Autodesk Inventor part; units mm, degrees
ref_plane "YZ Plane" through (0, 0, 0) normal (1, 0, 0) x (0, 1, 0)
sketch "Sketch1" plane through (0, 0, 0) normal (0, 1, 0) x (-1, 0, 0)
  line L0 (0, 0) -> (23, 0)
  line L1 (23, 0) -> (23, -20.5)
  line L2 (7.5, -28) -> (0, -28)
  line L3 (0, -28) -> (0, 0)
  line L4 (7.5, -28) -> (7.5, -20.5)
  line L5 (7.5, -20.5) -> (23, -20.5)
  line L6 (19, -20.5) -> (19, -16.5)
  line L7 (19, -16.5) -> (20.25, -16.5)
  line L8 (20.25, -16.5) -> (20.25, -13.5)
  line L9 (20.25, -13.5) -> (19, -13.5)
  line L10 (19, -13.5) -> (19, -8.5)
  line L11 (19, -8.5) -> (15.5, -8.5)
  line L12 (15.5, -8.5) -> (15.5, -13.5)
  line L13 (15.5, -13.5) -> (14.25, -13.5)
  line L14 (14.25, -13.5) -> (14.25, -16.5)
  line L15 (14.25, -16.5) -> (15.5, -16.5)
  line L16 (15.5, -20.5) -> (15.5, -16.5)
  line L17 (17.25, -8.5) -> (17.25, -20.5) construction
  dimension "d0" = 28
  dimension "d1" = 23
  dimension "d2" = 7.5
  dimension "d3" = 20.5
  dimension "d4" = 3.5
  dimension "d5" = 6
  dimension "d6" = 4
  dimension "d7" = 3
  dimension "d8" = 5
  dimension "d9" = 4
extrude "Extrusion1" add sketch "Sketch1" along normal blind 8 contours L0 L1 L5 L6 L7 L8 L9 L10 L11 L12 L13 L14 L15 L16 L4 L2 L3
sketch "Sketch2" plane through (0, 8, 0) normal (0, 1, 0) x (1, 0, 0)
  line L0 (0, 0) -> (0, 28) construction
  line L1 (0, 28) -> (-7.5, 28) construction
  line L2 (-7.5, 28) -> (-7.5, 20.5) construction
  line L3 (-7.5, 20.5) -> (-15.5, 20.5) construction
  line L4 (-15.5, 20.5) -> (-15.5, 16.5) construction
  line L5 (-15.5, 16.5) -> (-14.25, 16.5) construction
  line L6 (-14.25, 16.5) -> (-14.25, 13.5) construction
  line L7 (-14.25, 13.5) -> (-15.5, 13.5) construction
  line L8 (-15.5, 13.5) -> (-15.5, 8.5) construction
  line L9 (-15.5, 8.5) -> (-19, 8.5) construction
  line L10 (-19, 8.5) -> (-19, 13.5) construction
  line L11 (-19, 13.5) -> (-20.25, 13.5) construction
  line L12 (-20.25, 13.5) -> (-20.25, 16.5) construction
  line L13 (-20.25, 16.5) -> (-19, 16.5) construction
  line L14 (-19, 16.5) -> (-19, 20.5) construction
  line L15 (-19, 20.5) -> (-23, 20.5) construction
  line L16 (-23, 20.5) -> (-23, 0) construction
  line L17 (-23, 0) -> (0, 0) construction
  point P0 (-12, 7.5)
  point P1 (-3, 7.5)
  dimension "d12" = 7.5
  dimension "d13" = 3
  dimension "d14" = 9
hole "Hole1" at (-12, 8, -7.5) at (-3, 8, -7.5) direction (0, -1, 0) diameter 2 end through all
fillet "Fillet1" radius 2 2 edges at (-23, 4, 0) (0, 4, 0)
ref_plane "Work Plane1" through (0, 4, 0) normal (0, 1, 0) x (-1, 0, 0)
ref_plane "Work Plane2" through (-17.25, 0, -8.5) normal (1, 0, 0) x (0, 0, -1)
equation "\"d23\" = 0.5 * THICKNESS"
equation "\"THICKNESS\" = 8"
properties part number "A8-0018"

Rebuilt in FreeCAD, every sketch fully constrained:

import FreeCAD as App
import Part
import Sketcher

V = App.Vector


def edges_at(feature, points):
    """Names of the edges that pass closest to the given points."""
    edges = feature.Shape.Edges
    near = lambda p: min(range(len(edges)), key=lambda i: edges[i].distToShape(Part.Vertex(*p))[0])
    return sorted({f"Edge{near(p) + 1}" for p in points})

doc = App.newDocument("Part")
body = doc.addObject("PartDesign::Body", "Body")

sketch1 = body.newObject("Sketcher::SketchObject", "Sketch")
sketch1.AttachmentSupport = (doc.getObject("XZ_Plane"), [""])
sketch1.MapMode = "FlatFace"
sketch1.addGeometry(Part.LineSegment(V(-23, 0, 0), V(0, 0, 0)), False)
sketch1.addGeometry(Part.LineSegment(V(0, 0, 0), V(0, -28, 0)), False)
sketch1.addGeometry(Part.LineSegment(V(0, -28, 0), V(-7.5, -28, 0)), False)
sketch1.addGeometry(Part.LineSegment(V(-7.5, -28, 0), V(-7.5, -20.5, 0)), False)
sketch1.addGeometry(Part.LineSegment(V(-7.5, -20.5, 0), V(-15.5, -20.5, 0)), False)
sketch1.addGeometry(Part.LineSegment(V(-15.5, -20.5, 0), V(-15.5, -16.5, 0)), False)
sketch1.addGeometry(Part.LineSegment(V(-15.5, -16.5, 0), V(-14.25, -16.5, 0)), False)
sketch1.addGeometry(Part.LineSegment(V(-14.25, -16.5, 0), V(-14.25, -13.5, 0)), False)
sketch1.addGeometry(Part.LineSegment(V(-14.25, -13.5, 0), V(-15.5, -13.5, 0)), False)
sketch1.addGeometry(Part.LineSegment(V(-15.5, -13.5, 0), V(-15.5, -8.5, 0)), False)
sketch1.addGeometry(Part.LineSegment(V(-15.5, -8.5, 0), V(-19, -8.5, 0)), False)
sketch1.addGeometry(Part.LineSegment(V(-19, -8.5, 0), V(-19, -13.5, 0)), False)
sketch1.addGeometry(Part.LineSegment(V(-19, -13.5, 0), V(-20.25, -13.5, 0)), False)
sketch1.addGeometry(Part.LineSegment(V(-20.25, -13.5, 0), V(-20.25, -16.5, 0)), False)
sketch1.addGeometry(Part.LineSegment(V(-20.25, -16.5, 0), V(-19, -16.5, 0)), False)
sketch1.addGeometry(Part.LineSegment(V(-19, -16.5, 0), V(-19, -20.5, 0)), False)
sketch1.addGeometry(Part.LineSegment(V(-19, -20.5, 0), V(-23, -20.5, 0)), False)
sketch1.addGeometry(Part.LineSegment(V(-23, -20.5, 0), V(-23, 0, 0)), False)
sketch1.addConstraint(Sketcher.Constraint("Coincident", 0, 2, 1, 1))
sketch1.addConstraint(Sketcher.Constraint("Coincident", 1, 2, 2, 1))
sketch1.addConstraint(Sketcher.Constraint("Coincident", 2, 2, 3, 1))
sketch1.addConstraint(Sketcher.Constraint("Coincident", 3, 2, 4, 1))
sketch1.addConstraint(Sketcher.Constraint("Coincident", 4, 2, 5, 1))
sketch1.addConstraint(Sketcher.Constraint("Coincident", 5, 2, 6, 1))
sketch1.addConstraint(Sketcher.Constraint("Coincident", 6, 2, 7, 1))
sketch1.addConstraint(Sketcher.Constraint("Coincident", 7, 2, 8, 1))
sketch1.addConstraint(Sketcher.Constraint("Coincident", 8, 2, 9, 1))
sketch1.addConstraint(Sketcher.Constraint("Coincident", 9, 2, 10, 1))
sketch1.addConstraint(Sketcher.Constraint("Coincident", 10, 2, 11, 1))
sketch1.addConstraint(Sketcher.Constraint("Coincident", 11, 2, 12, 1))
sketch1.addConstraint(Sketcher.Constraint("Coincident", 12, 2, 13, 1))
sketch1.addConstraint(Sketcher.Constraint("Coincident", 13, 2, 14, 1))
sketch1.addConstraint(Sketcher.Constraint("Coincident", 14, 2, 15, 1))
sketch1.addConstraint(Sketcher.Constraint("Coincident", 15, 2, 16, 1))
sketch1.addConstraint(Sketcher.Constraint("Coincident", 16, 2, 17, 1))
sketch1.addConstraint(Sketcher.Constraint("Coincident", 17, 2, 0, 1))
sketch1.addConstraint(Sketcher.Constraint("Horizontal", 0))
sketch1.addConstraint(Sketcher.Constraint("Vertical", 1))
sketch1.addConstraint(Sketcher.Constraint("Horizontal", 2))
sketch1.addConstraint(Sketcher.Constraint("Vertical", 3))
sketch1.addConstraint(Sketcher.Constraint("Horizontal", 4))
sketch1.addConstraint(Sketcher.Constraint("Vertical", 5))
sketch1.addConstraint(Sketcher.Constraint("Horizontal", 6))
sketch1.addConstraint(Sketcher.Constraint("Vertical", 7))
sketch1.addConstraint(Sketcher.Constraint("Horizontal", 8))
sketch1.addConstraint(Sketcher.Constraint("Vertical", 9))
sketch1.addConstraint(Sketcher.Constraint("Horizontal", 10))
sketch1.addConstraint(Sketcher.Constraint("Vertical", 11))
sketch1.addConstraint(Sketcher.Constraint("Horizontal", 12))
sketch1.addConstraint(Sketcher.Constraint("Vertical", 13))
sketch1.addConstraint(Sketcher.Constraint("Horizontal", 14))
sketch1.addConstraint(Sketcher.Constraint("Vertical", 15))
sketch1.addConstraint(Sketcher.Constraint("Horizontal", 16))
sketch1.addConstraint(Sketcher.Constraint("Vertical", 17))
sketch1.addConstraint(Sketcher.Constraint("Coincident", 0, 2, -1, 1))
sketch1.addConstraint(Sketcher.Constraint("Horizontal", 8, 2, 11, 2))
sketch1.addConstraint(Sketcher.Constraint("Horizontal", 6, 2, 13, 2))
sketch1.addConstraint(Sketcher.Constraint("Horizontal", 4, 2, 15, 2))
sketch1.addConstraint(Sketcher.Constraint("Vertical", 5, 2, 8, 2))
sketch1.addConstraint(Sketcher.Constraint("Vertical", 11, 2, 14, 2))
sketch1.addConstraint(Sketcher.Constraint("Equal", 8, 12))
sketch1.addConstraint(Sketcher.Constraint("Equal", 2, 3))
sketch1.addConstraint(Sketcher.Constraint("Equal", 16, 5))
sketch1.addConstraint(Sketcher.Constraint("DistanceX", 0, 1, 0, 2, 23.0))
sketch1.addConstraint(Sketcher.Constraint("DistanceX", 16, 2, 16, 1, 4.0))
sketch1.addConstraint(Sketcher.Constraint("DistanceY", 1, 2, 1, 1, 28.0))
sketch1.addConstraint(Sketcher.Constraint("DistanceY", 7, 1, 7, 2, 3.0))
sketch1.addConstraint(Sketcher.Constraint("DistanceY", 9, 1, 9, 2, 5.0))
sketch1.addConstraint(Sketcher.Constraint("DistanceX", 2, 2, 2, 1, 7.5))
sketch1.addConstraint(Sketcher.Constraint("DistanceX", 10, 2, 10, 1, 3.5))
sketch1.addConstraint(Sketcher.Constraint("DistanceX", 12, 2, 7, 2, 6.0))
pad1 = body.newObject("PartDesign::Pad", "Pad")
pad1.Profile = sketch1
pad1.Length = 8
pad1.Reversed = True

sketch2 = body.newObject("Sketcher::SketchObject", "Sketch001")
sketch2.AttachmentSupport = (doc.getObject("XZ_Plane"), [""])
sketch2.MapMode = "FlatFace"
sketch2.AttachmentOffset = App.Placement(V(0, 0, -8), App.Rotation())
sketch2.addGeometry(Part.Circle(V(-12, -7.5, 0), V(0, 0, 1), 1), False)
sketch2.addGeometry(Part.Circle(V(-3, -7.5, 0), V(0, 0, 1), 1), False)
sketch2.addConstraint(Sketcher.Constraint("Equal", 0, 1))
sketch2.addConstraint(Sketcher.Constraint("Horizontal", 0, 3, 1, 3))
sketch2.addConstraint(Sketcher.Constraint("Diameter", 0, 2.0))
sketch2.addConstraint(Sketcher.Constraint("DistanceX", 0, 3, -1, 1, 12.0))
sketch2.addConstraint(Sketcher.Constraint("DistanceX", 1, 3, -1, 1, 3.0))
sketch2.addConstraint(Sketcher.Constraint("DistanceY", 0, 3, -1, 1, 7.5))
doc.recompute()
hole = body.newObject("PartDesign::Hole", "Hole")
hole.Profile = sketch2
hole.ThreadType = "None"
hole.Diameter = 2
hole.DepthType = "ThroughAll"
hole.Reversed = True
doc.recompute()

fillet = body.newObject("PartDesign::Fillet", "Fillet")
fillet.Base = (hole, edges_at(hole, [(-23, 4, 0), (0, 4, 0)]))
fillet.Radius = 2

doc.recompute()
